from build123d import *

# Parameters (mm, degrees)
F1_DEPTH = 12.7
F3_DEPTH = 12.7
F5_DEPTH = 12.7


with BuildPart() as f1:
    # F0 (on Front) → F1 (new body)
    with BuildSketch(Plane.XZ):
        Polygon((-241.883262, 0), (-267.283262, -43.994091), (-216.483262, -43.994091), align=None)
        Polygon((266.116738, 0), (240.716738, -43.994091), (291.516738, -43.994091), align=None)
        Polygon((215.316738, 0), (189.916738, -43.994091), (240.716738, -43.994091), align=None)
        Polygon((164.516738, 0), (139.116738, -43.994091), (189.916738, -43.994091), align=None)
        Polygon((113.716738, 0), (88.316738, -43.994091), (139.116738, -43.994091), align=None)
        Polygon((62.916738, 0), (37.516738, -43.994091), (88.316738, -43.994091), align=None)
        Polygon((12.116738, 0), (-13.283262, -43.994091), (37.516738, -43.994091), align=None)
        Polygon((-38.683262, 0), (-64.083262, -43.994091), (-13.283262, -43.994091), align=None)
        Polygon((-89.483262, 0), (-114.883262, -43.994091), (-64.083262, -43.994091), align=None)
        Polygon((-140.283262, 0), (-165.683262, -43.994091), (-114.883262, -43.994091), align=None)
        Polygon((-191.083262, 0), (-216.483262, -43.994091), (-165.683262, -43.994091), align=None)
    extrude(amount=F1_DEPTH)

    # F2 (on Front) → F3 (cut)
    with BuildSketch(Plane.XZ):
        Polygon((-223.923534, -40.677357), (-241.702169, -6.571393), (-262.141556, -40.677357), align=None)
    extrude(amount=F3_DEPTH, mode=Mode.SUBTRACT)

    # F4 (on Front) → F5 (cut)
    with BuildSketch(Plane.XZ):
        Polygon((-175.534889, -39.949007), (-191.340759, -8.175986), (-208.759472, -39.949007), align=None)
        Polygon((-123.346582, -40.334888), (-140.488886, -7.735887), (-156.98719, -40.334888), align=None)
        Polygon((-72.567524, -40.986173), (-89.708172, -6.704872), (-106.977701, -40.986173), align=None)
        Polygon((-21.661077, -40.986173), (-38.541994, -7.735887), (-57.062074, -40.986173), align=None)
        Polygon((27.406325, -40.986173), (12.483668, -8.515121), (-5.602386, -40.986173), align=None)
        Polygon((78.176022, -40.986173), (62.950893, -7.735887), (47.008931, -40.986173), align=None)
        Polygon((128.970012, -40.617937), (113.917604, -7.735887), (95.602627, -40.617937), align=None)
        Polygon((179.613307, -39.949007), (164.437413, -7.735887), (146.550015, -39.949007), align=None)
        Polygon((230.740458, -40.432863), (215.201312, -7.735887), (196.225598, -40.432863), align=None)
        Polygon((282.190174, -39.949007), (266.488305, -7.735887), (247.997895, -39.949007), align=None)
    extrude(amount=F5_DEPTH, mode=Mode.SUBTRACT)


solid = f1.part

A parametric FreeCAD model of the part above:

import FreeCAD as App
import Part
import Sketcher

V = App.Vector
Q = App.Units.Quantity


def add_polygon(sketch, points):
    """Adds a closed chain of lines whose ends are joined by coincident constraints."""
    first, n = sketch.GeometryCount, len(points)
    for a, b in zip(points, points[1:] + points[:1]):
        sketch.addGeometry(Part.LineSegment(App.Vector(*a, 0), App.Vector(*b, 0)), False)
    for i in range(n):
        sketch.addConstraint(Sketcher.Constraint("Coincident", first + i, 2, first + (i + 1) % n, 1))

doc = App.newDocument("Part")
body = doc.addObject("PartDesign::Body", "Body")
body.AllowCompound = True

# Sketch on XZ plane
sketch1 = body.newObject("Sketcher::SketchObject", "Sketch")
sketch1.AttachmentSupport = (doc.getObject("XZ_Plane"), [""])
sketch1.MapMode = "FlatFace"
add_polygon(sketch1, [(-241.883262, 0), (-267.283262, -43.994091), (-216.483262, -43.994091)])  # lines 0-2
add_polygon(sketch1, [(266.116738, 0), (240.716738, -43.994091), (291.516738, -43.994091)])  # lines 3-5
add_polygon(sketch1, [(215.316738, 0), (189.916738, -43.994091), (240.716738, -43.994091)])  # lines 6-8
add_polygon(sketch1, [(164.516738, 0), (139.116738, -43.994091), (189.916738, -43.994091)])  # lines 9-11
add_polygon(sketch1, [(113.716738, 0), (88.316738, -43.994091), (139.116738, -43.994091)])  # lines 12-14
add_polygon(sketch1, [(62.916738, 0), (37.516738, -43.994091), (88.316738, -43.994091)])  # lines 15-17
add_polygon(sketch1, [(12.116738, 0), (-13.283262, -43.994091), (37.516738, -43.994091)])  # lines 18-20
add_polygon(sketch1, [(-38.683262, 0), (-64.083262, -43.994091), (-13.283262, -43.994091)])  # lines 21-23
add_polygon(sketch1, [(-89.483262, 0), (-114.883262, -43.994091), (-64.083262, -43.994091)])  # lines 24-26
add_polygon(sketch1, [(-140.283262, 0), (-165.683262, -43.994091), (-114.883262, -43.994091)])  # lines 27-29
add_polygon(sketch1, [(-191.083262, 0), (-216.483262, -43.994091), (-165.683262, -43.994091)])  # lines 30-32
sketch1.addConstraint(Sketcher.Constraint("Horizontal", 1))
sketch1.addConstraint(Sketcher.Constraint("Horizontal", 4))
sketch1.addConstraint(Sketcher.Constraint("Horizontal", 7))
sketch1.addConstraint(Sketcher.Constraint("Horizontal", 10))
sketch1.addConstraint(Sketcher.Constraint("Horizontal", 13))
sketch1.addConstraint(Sketcher.Constraint("Horizontal", 16))
sketch1.addConstraint(Sketcher.Constraint("Horizontal", 19))
sketch1.addConstraint(Sketcher.Constraint("Horizontal", 22))
sketch1.addConstraint(Sketcher.Constraint("Horizontal", 25))
sketch1.addConstraint(Sketcher.Constraint("Horizontal", 28))
sketch1.addConstraint(Sketcher.Constraint("Horizontal", 31))
sketch1.addConstraint(Sketcher.Constraint("Coincident", 7, 2, 3, 2))
sketch1.addConstraint(Sketcher.Constraint("Coincident", 10, 2, 6, 2))
sketch1.addConstraint(Sketcher.Constraint("Coincident", 13, 2, 9, 2))
sketch1.addConstraint(Sketcher.Constraint("Coincident", 16, 2, 12, 2))
sketch1.addConstraint(Sketcher.Constraint("Coincident", 19, 2, 15, 2))
sketch1.addConstraint(Sketcher.Constraint("Coincident", 22, 2, 18, 2))
sketch1.addConstraint(Sketcher.Constraint("Coincident", 25, 2, 21, 2))
sketch1.addConstraint(Sketcher.Constraint("Coincident", 28, 2, 24, 2))
sketch1.addConstraint(Sketcher.Constraint("Coincident", 30, 2, 1, 2))
sketch1.addConstraint(Sketcher.Constraint("Coincident", 31, 2, 27, 2))
sketch1.addConstraint(Sketcher.Constraint("PointOnObject", 2, 2, -1))
sketch1.addConstraint(Sketcher.Constraint("PointOnObject", 5, 2, -1))
sketch1.addConstraint(Sketcher.Constraint("PointOnObject", 8, 2, -1))
sketch1.addConstraint(Sketcher.Constraint("PointOnObject", 11, 2, -1))
sketch1.addConstraint(Sketcher.Constraint("PointOnObject", 14, 2, -1))
sketch1.addConstraint(Sketcher.Constraint("PointOnObject", 17, 2, -1))
sketch1.addConstraint(Sketcher.Constraint("PointOnObject", 20, 2, -1))
sketch1.addConstraint(Sketcher.Constraint("PointOnObject", 23, 2, -1))
sketch1.addConstraint(Sketcher.Constraint("PointOnObject", 26, 2, -1))
sketch1.addConstraint(Sketcher.Constraint("PointOnObject", 29, 2, -1))
sketch1.addConstraint(Sketcher.Constraint("PointOnObject", 32, 2, -1))
sketch1.addConstraint(Sketcher.Constraint("Parallel", 0, 3))
sketch1.addConstraint(Sketcher.Constraint("Parallel", 2, 5))
sketch1.addConstraint(Sketcher.Constraint("Parallel", 3, 6))
sketch1.addConstraint(Sketcher.Constraint("Parallel", 5, 8))
sketch1.addConstraint(Sketcher.Constraint("Parallel", 6, 9))
sketch1.addConstraint(Sketcher.Constraint("Parallel", 8, 11))
sketch1.addConstraint(Sketcher.Constraint("Parallel", 9, 12))
sketch1.addConstraint(Sketcher.Constraint("Parallel", 11, 14))
sketch1.addConstraint(Sketcher.Constraint("Parallel", 12, 15))
sketch1.addConstraint(Sketcher.Constraint("Parallel", 14, 17))
sketch1.addConstraint(Sketcher.Constraint("Parallel", 15, 18))
sketch1.addConstraint(Sketcher.Constraint("Parallel", 17, 20))
sketch1.addConstraint(Sketcher.Constraint("Parallel", 18, 21))
sketch1.addConstraint(Sketcher.Constraint("Parallel", 20, 23))
sketch1.addConstraint(Sketcher.Constraint("Parallel", 21, 24))
sketch1.addConstraint(Sketcher.Constraint("Parallel", 23, 26))
sketch1.addConstraint(Sketcher.Constraint("Parallel", 24, 27))
sketch1.addConstraint(Sketcher.Constraint("Parallel", 26, 29))
sketch1.addConstraint(Sketcher.Constraint("Parallel", 27, 30))
sketch1.addConstraint(Sketcher.Constraint("Parallel", 29, 32))
sketch1.addConstraint(Sketcher.Constraint("Equal", 0, 2))
sketch1.addConstraint(Sketcher.Constraint("DistanceX", 1, 1, 1, 2, Q("2 in")))
sketch1.addConstraint(Sketcher.Constraint("Distance", 0, Q("2 in")))
sketch1.addConstraint(Sketcher.Constraint("DistanceX", 0, 2, -1, 1, 267.283262))
pad1 = body.newObject("PartDesign::Pad", "Pad")
pad1.Profile = sketch1
pad1.Length = Q("0.5 in")

# Sketch on XZ plane
sketch2 = body.newObject("Sketcher::SketchObject", "Sketch001")
sketch2.AttachmentSupport = (doc.getObject("XZ_Plane"), [""])
sketch2.MapMode = "FlatFace"
add_polygon(sketch2, [(-223.923534, -40.677357), (-241.702169, -6.571393), (-262.141556, -40.677357)])  # lines 0-2
sketch2.addConstraint(Sketcher.Constraint("Horizontal", 2))
sketch2.addConstraint(Sketcher.Constraint("DistanceX", 2, 1, 2, 2, 38.218022))
sketch2.addConstraint(Sketcher.Constraint("DistanceX", 0, 2, -1, 1, 241.702169))
sketch2.addConstraint(Sketcher.Constraint("Distance", 0, 38.461626))
sketch2.addConstraint(Sketcher.Constraint("Distance", 1, 39.761606))
sketch2.addConstraint(Sketcher.Constraint("DistanceY", 0, 2, -1, 1, 6.571393))
pocket1 = body.newObject("PartDesign::Pocket", "Pocket")
pocket1.Profile = sketch2
pocket1.Length = Q("0.5 in")
pocket1.Reversed = True

# Sketch on XZ plane
sketch3 = body.newObject("Sketcher::SketchObject", "Sketch002")
sketch3.AttachmentSupport = (doc.getObject("XZ_Plane"), [""])
sketch3.MapMode = "FlatFace"
add_polygon(sketch3, [(-175.534889, -39.949007), (-191.340759, -8.175986), (-208.759472, -39.949007)])  # lines 0-2
add_polygon(sketch3, [(-123.346582, -40.334888), (-140.488886, -7.735887), (-156.98719, -40.334888)])  # lines 3-5
add_polygon(sketch3, [(-72.567524, -40.986173), (-89.708172, -6.704872), (-106.977701, -40.986173)])  # lines 6-8
add_polygon(sketch3, [(-21.661077, -40.986173), (-38.541994, -7.735887), (-57.062074, -40.986173)])  # lines 9-11
add_polygon(sketch3, [(27.406325, -40.986173), (12.483668, -8.515121), (-5.602386, -40.986173)])  # lines 12-14
add_polygon(sketch3, [(78.176022, -40.986173), (62.950893, -7.735887), (47.008931, -40.986173)])  # lines 15-17
add_polygon(sketch3, [(128.970012, -40.617937), (113.917604, -7.735887), (95.602627, -40.617937)])  # lines 18-20
add_polygon(sketch3, [(179.613307, -39.949007), (164.437413, -7.735887), (146.550015, -39.949007)])  # lines 21-23
add_polygon(sketch3, [(230.740458, -40.432863), (215.201312, -7.735887), (196.225598, -40.432863)])  # lines 24-26
add_polygon(sketch3, [(282.190174, -39.949007), (266.488305, -7.735887), (247.997895, -39.949007)])  # lines 27-29
sketch3.addConstraint(Sketcher.Constraint("Horizontal", 2))
sketch3.addConstraint(Sketcher.Constraint("Horizontal", 5))
sketch3.addConstraint(Sketcher.Constraint("Horizontal", 8))
sketch3.addConstraint(Sketcher.Constraint("Horizontal", 11))
sketch3.addConstraint(Sketcher.Constraint("Horizontal", 14))
sketch3.addConstraint(Sketcher.Constraint("Horizontal", 17))
sketch3.addConstraint(Sketcher.Constraint("Horizontal", 20))
sketch3.addConstraint(Sketcher.Constraint("Horizontal", 23))
sketch3.addConstraint(Sketcher.Constraint("Horizontal", 26))
sketch3.addConstraint(Sketcher.Constraint("Horizontal", 29))
sketch3.addConstraint(Sketcher.Constraint("Parallel", 10, 13))
sketch3.addConstraint(Sketcher.Constraint("Parallel", 13, 19))
sketch3.addConstraint(Sketcher.Constraint("Horizontal", 3, 2, 9, 2))
sketch3.addConstraint(Sketcher.Constraint("Horizontal", 8, 2, 10, 2))
sketch3.addConstraint(Sketcher.Constraint("Horizontal", 11, 2, 13, 2))
sketch3.addConstraint(Sketcher.Constraint("Horizontal", 9, 2, 15, 2))
sketch3.addConstraint(Sketcher.Constraint("Horizontal", 14, 2, 16, 2))
sketch3.addConstraint(Sketcher.Constraint("Horizontal", 15, 2, 18, 2))
sketch3.addConstraint(Sketcher.Constraint("Horizontal", 18, 2, 21, 2))
sketch3.addConstraint(Sketcher.Constraint("Horizontal", 2, 2, 22, 2))
sketch3.addConstraint(Sketcher.Constraint("Horizontal", 21, 2, 24, 2))
sketch3.addConstraint(Sketcher.Constraint("Horizontal", 24, 2, 27, 2))
sketch3.addConstraint(Sketcher.Constraint("Horizontal", 23, 2, 28, 2))
sketch3.addConstraint(Sketcher.Constraint("DistanceX", 14, 1, 14, 2, 33.008711))
sketch3.addConstraint(Sketcher.Constraint("DistanceX", 17, 1, 17, 2, 31.167091))
sketch3.addConstraint(Sketcher.Constraint("DistanceX", 23, 1, 23, 2, 33.063292))
sketch3.addConstraint(Sketcher.Constraint("DistanceX", 26, 1, 26, 2, 34.51486))
sketch3.addConstraint(Sketcher.Constraint("DistanceX", 29, 1, 29, 2, 34.192279))
sketch3.addConstraint(Sketcher.Constraint("DistanceX", 7, 2, -1, 1, 106.977701))
sketch3.addConstraint(Sketcher.Constraint("DistanceX", -1, 1, 25, 2, 196.225598))
sketch3.addConstraint(Sketcher.Constraint("DistanceY", 0, 2, 3, 2, 0.440099))
sketch3.addConstraint(Sketcher.Constraint("DistanceX", 2, 2, 4, 2, 18.547699))
sketch3.addConstraint(Sketcher.Constraint("DistanceY", 4, 2, 3, 2, 32.599001))
sketch3.addConstraint(Sketcher.Constraint("DistanceY", 7, 2, 6, 2, 34.281301))
sketch3.addConstraint(Sketcher.Constraint("DistanceX", 6, 2, 10, 2, 32.646098))
sketch3.addConstraint(Sketcher.Constraint("DistanceX", 10, 2, 14, 2, 84.468399))
sketch3.addConstraint(Sketcher.Constraint("DistanceX", 20, 2, 21, 2, 35.467401))
sketch3.addConstraint(Sketcher.Constraint("DistanceX", 21, 2, 24, 2, 50.763899))
sketch3.addConstraint(Sketcher.Constraint("DistanceX", 23, 2, 27, 2, 86.874998))
sketch3.addConstraint(Sketcher.Constraint("Distance", 3, 36.831419))
sketch3.addConstraint(Sketcher.Constraint("Distance", 4, 36.536131))
sketch3.addConstraint(Sketcher.Constraint("Distance", 6, 38.327659))
sketch3.addConstraint(Sketcher.Constraint("Distance", 7, 38.385469))
sketch3.addConstraint(Sketcher.Constraint("Distance", 10, 38.060148))
sketch3.addConstraint(Sketcher.Constraint("Distance", 15, 36.570289))
sketch3.addConstraint(Sketcher.Constraint("Distance", 24, 36.20162))
sketch3.addConstraint(Sketcher.Constraint("DistanceX", 2, 1, 2, 2, 33.224583))
sketch3.addConstraint(Sketcher.Constraint("DistanceX", 11, 1, 11, 2, 35.400997))
sketch3.addConstraint(Sketcher.Constraint("DistanceX", 20, 1, 20, 2, 33.367385))
sketch3.addConstraint(Sketcher.Constraint("DistanceX", 0, 2, -1, 1, 191.340759))
sketch3.addConstraint(Sketcher.Constraint("DistanceX", 1, 2, -1, 1, 208.759472))
sketch3.addConstraint(Sketcher.Constraint("DistanceY", 12, 2, -1, 1, 8.515121))
sketch3.addConstraint(Sketcher.Constraint("DistanceX", -1, 1, 16, 2, 47.008931))
sketch3.addConstraint(Sketcher.Constraint("DistanceX", -1, 1, 20, 2, 128.970012))
sketch3.addConstraint(Sketcher.Constraint("DistanceY", 1, 2, 0, 2, 31.773021))
sketch3.addConstraint(Sketcher.Constraint("DistanceX", 8, 2, 9, 2, 34.02553))
sketch3.addConstraint(Sketcher.Constraint("DistanceX", 8, 2, 12, 2, 85.051192))
sketch3.addConstraint(Sketcher.Constraint("DistanceX", 17, 2, 18, 2, 35.741582))
sketch3.addConstraint(Sketcher.Constraint("DistanceX", 18, 2, 22, 2, 32.632411))
sketch3.addConstraint(Sketcher.Constraint("DistanceX", 28, 2, 27, 2, 18.49041))
pocket2 = body.newObject("PartDesign::Pocket", "Pocket001")
pocket2.Profile = sketch3
pocket2.Length = Q("0.5 in")
pocket2.Reversed = True

doc.recompute()
